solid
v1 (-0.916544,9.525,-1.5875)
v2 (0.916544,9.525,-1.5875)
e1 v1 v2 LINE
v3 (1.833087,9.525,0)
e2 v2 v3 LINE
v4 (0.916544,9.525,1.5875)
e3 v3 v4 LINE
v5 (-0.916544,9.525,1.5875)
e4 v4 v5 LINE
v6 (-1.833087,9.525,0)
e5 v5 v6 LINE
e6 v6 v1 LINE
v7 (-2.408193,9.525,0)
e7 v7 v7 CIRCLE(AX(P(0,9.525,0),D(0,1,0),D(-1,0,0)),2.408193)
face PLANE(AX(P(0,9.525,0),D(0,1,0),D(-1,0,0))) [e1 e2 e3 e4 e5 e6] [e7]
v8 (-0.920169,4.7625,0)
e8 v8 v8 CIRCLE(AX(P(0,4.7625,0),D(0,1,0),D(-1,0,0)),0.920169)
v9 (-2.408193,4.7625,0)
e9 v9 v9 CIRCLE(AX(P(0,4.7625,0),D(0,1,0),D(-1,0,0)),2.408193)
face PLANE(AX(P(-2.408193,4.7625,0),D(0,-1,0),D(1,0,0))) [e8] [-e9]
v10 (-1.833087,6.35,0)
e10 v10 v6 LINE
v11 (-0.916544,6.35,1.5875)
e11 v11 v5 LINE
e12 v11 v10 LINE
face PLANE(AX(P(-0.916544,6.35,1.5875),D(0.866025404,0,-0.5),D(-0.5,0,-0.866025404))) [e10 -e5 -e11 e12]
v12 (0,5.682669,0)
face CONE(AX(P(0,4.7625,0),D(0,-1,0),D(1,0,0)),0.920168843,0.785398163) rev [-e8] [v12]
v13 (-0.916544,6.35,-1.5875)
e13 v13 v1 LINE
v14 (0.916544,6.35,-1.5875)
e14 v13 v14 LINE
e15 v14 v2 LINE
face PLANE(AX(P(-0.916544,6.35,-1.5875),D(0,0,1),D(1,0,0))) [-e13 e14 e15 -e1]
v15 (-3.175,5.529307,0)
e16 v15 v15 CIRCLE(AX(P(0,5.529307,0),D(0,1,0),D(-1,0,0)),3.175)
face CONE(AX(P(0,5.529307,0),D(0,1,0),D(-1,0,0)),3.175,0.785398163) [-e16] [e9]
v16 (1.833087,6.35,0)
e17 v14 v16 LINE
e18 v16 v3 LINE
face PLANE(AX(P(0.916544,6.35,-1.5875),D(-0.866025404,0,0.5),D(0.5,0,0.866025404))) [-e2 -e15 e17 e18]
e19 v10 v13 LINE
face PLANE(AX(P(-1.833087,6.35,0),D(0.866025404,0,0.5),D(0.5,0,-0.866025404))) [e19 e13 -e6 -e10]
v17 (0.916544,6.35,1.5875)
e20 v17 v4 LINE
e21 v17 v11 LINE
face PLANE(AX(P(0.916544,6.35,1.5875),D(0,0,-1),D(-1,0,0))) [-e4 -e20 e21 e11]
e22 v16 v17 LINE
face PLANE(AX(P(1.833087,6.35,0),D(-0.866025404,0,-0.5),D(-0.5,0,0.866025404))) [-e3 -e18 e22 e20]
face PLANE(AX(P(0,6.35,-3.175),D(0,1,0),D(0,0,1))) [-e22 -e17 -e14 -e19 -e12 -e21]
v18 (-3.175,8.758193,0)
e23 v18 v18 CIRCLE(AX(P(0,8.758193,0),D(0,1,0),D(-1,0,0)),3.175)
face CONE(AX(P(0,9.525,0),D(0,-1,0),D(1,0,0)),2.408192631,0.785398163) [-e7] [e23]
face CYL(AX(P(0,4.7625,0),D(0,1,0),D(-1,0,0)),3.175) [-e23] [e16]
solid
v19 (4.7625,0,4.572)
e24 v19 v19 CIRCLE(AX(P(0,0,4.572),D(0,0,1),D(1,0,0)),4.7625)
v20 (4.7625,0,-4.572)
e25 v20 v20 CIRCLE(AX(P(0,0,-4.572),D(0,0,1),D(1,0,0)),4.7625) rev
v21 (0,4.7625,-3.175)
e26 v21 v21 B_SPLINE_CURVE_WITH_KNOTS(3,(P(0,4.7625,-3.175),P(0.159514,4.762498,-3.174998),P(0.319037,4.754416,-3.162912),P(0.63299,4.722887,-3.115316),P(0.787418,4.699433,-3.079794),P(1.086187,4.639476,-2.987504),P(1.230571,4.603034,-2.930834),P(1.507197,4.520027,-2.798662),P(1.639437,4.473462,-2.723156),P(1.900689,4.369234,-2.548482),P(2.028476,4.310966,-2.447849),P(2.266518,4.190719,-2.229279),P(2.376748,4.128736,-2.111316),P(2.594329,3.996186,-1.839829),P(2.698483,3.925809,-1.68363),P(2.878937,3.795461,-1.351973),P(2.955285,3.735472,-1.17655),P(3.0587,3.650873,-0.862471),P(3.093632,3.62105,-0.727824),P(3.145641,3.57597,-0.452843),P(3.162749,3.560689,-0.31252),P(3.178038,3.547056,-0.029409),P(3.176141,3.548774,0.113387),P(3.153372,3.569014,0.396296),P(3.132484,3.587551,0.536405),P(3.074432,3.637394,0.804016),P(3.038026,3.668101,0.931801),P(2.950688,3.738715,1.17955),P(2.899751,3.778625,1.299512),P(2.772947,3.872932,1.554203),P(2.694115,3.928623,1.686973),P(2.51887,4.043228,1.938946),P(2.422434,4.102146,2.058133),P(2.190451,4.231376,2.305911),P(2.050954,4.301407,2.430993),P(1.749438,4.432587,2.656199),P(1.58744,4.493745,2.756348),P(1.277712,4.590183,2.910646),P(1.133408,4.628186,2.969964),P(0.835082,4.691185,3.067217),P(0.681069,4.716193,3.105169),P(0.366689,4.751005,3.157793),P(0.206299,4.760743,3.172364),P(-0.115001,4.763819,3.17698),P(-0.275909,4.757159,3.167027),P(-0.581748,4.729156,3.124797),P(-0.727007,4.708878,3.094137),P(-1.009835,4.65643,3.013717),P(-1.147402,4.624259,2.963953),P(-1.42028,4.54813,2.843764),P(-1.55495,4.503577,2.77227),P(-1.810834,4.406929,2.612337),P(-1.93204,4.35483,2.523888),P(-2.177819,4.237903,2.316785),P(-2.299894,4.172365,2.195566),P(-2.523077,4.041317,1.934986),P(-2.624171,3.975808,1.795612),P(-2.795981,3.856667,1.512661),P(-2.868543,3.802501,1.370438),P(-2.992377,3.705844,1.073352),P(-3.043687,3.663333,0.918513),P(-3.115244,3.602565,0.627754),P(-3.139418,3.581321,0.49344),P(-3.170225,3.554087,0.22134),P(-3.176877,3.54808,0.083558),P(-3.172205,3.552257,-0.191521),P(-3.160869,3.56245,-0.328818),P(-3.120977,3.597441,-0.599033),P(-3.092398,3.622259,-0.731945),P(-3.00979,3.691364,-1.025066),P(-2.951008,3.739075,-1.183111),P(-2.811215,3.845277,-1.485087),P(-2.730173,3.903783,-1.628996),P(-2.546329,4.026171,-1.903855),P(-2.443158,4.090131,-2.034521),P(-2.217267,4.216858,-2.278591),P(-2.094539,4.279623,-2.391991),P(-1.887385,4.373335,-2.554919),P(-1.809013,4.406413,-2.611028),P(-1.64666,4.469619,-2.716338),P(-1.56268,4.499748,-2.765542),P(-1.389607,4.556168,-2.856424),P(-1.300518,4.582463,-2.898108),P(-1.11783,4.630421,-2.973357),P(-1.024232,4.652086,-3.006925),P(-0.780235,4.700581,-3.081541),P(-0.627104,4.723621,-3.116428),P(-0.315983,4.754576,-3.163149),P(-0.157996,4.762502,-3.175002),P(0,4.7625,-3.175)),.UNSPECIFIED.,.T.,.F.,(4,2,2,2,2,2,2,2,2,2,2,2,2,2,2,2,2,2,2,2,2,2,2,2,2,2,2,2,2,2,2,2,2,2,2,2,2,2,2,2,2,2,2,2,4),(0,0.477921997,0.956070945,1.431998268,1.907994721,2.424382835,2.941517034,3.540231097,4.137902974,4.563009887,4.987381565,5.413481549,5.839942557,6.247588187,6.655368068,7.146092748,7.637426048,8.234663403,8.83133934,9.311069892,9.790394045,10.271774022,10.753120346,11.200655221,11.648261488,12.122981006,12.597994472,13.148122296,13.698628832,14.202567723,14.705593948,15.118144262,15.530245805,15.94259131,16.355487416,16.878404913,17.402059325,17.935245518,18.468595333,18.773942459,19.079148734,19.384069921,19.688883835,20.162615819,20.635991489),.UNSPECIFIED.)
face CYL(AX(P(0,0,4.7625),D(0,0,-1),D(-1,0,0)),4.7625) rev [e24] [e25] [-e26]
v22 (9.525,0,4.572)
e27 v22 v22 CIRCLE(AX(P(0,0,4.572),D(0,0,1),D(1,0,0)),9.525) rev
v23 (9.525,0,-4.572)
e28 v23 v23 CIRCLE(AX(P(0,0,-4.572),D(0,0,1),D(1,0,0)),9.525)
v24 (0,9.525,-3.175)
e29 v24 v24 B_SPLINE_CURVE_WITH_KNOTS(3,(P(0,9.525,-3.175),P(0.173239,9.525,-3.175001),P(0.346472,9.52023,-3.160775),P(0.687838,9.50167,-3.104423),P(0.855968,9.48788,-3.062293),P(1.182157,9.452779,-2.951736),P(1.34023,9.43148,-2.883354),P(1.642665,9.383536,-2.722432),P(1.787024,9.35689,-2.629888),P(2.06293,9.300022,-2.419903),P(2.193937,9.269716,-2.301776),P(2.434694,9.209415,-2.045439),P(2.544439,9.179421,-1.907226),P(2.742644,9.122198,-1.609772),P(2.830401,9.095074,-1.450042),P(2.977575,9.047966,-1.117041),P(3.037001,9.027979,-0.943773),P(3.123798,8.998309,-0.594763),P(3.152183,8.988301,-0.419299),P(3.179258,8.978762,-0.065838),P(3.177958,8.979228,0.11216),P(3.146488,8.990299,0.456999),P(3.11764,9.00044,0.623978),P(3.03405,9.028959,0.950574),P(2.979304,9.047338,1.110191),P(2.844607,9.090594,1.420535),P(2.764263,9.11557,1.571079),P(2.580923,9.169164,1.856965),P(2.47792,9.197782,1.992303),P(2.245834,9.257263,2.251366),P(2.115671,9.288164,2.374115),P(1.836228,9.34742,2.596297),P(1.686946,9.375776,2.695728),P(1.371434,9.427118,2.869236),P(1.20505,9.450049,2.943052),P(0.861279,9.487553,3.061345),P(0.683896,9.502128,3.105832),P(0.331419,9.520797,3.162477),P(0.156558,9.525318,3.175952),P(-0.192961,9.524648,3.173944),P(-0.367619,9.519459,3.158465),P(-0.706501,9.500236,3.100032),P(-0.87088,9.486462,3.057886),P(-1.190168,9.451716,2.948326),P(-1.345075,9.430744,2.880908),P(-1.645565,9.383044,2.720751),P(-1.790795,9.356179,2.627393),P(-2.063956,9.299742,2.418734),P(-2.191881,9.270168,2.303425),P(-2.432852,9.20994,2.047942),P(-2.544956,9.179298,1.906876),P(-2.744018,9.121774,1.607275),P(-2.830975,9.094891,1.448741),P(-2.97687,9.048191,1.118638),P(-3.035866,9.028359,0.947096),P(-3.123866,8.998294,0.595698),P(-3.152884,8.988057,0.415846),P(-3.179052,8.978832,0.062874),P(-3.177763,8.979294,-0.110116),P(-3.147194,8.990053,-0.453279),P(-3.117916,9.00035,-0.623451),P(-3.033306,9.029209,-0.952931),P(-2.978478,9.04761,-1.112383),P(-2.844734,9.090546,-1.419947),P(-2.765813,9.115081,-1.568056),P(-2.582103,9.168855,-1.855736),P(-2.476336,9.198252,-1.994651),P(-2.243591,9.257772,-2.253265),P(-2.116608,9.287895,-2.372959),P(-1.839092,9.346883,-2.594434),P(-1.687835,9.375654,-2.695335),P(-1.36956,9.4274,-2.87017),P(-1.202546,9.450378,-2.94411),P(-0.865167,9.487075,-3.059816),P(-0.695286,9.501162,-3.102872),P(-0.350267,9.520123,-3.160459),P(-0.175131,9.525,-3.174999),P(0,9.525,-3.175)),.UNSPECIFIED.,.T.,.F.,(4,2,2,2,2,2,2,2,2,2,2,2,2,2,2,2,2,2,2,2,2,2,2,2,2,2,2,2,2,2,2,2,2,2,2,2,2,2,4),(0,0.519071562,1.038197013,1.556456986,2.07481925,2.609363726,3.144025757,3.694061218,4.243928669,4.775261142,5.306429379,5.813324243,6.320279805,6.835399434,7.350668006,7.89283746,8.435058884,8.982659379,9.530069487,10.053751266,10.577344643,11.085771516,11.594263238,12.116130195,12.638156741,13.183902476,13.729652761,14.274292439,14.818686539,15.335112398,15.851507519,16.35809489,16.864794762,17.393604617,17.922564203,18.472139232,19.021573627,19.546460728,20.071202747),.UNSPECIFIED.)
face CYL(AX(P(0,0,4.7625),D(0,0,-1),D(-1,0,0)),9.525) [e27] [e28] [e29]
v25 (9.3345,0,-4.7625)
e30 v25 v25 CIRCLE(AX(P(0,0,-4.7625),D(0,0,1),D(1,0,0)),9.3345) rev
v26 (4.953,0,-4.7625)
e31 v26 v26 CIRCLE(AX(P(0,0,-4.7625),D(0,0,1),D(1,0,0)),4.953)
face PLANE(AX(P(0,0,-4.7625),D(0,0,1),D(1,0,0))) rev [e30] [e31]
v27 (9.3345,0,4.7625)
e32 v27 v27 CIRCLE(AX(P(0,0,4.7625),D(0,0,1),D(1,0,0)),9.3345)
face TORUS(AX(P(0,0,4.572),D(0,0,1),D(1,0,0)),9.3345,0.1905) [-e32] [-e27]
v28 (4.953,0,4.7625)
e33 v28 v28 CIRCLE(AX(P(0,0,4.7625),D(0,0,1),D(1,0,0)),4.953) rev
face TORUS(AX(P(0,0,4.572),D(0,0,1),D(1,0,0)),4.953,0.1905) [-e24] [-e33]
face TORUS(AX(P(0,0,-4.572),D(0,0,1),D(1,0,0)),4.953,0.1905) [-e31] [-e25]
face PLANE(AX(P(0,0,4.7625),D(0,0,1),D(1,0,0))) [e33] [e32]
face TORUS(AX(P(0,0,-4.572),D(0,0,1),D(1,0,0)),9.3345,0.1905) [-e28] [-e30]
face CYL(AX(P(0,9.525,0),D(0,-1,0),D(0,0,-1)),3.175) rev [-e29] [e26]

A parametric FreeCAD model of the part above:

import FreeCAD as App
import Part
import Sketcher
Q = App.Units.Quantity


def edges_at(feature, points):
    """Names of the edges that pass closest to the given points."""
    edges = feature.Shape.Edges
    near = lambda p: min(range(len(edges)), key=lambda i: edges[i].distToShape(Part.Vertex(*p))[0])
    return sorted({f"Edge{near(p) + 1}" for p in points})

doc = App.newDocument("Part")
body = doc.addObject("PartDesign::Body", "Body")

# Sketch on XY plane
sketch1 = doc.addObject("Sketcher::SketchObject", "Sketch")
body.addObject(sketch1)
sketch1.AttachmentSupport = (doc.XY_Plane, [""])
sketch1.MapMode = "FlatFace"
sketch1.addGeometry([
    Part.Circle(App.Vector(0, 0, 0), App.Vector(0, 0, 1), 9.5),
    Part.Circle(App.Vector(0, 0, 0), App.Vector(0, 0, 1), 4.8),
], False)
sketch1.addConstraint([
    Sketcher.Constraint("Coincident", 0, 3, -1, 1),
    Sketcher.Constraint("Coincident", 1, 3, -1, 1),
    Sketcher.Constraint("Diameter", 0, Q("0.75 in")),
    Sketcher.Constraint("Diameter", 1, Q("0.375 in")),
])
pad1 = doc.addObject("PartDesign::Pad", "Pad")
body.addObject(pad1)
pad1.Profile = sketch1
pad1.Length = Q("0.375 in")
pad1.Midplane = True

# Sketch on XZ plane
sketch2 = doc.addObject("Sketcher::SketchObject", "Sketch001")
body.addObject(sketch2)
sketch2.AttachmentSupport = (doc.XZ_Plane, [""])
sketch2.MapMode = "FlatFace"
sketch2.addGeometry(Part.Circle(App.Vector(0, 0, 0), App.Vector(0, 0, 1), 3.2), False)
sketch2.addConstraint([
    Sketcher.Constraint("Coincident", 0, 3, -1, 1),
    Sketcher.Constraint("Diameter", 0, Q("0.25 in")),
])
pocket1 = doc.addObject("PartDesign::Pocket", "Pocket")
body.addObject(pocket1)
pocket1.Profile = sketch2
pocket1.Type = "ThroughAll"
doc.recompute()

fillet = doc.addObject("PartDesign::Fillet", "Fillet")
body.addObject(fillet)
fillet.Base = (pocket1, edges_at(pocket1, [
    (-9.525, 0, -4.763),
    (-9.525, 0, 4.763),
    (-4.763, 0, -4.763),
    (-4.763, 0, 4.763),
]))
fillet.Radius = Q("0.0075 in")
body2 = doc.addObject("PartDesign::Body", "Body001")

# Sketch on XY plane
sketch3 = doc.addObject("Sketcher::SketchObject", "Sketch002")
body2.addObject(sketch3)
sketch3.AttachmentSupport = (doc.getObject("XY_Plane001"), [""])
sketch3.MapMode = "FlatFace"
sketch3.addGeometry([
    Part.LineSegment(App.Vector(-2.4, 4.8, 0), App.Vector(-0.9, 4.8, 0)),  # 0
    Part.LineSegment(App.Vector(-0.9, 4.8, 0), App.Vector(0, 5.7, 0)),  # 1
    Part.LineSegment(App.Vector(0, 5.7, 0), App.Vector(0, 9.5, 0)),  # 2
    Part.LineSegment(App.Vector(0, 9.5, 0), App.Vector(-2.4, 9.5, 0)),  # 3
    Part.LineSegment(App.Vector(-2.4, 9.5, 0), App.Vector(-3.2, 8.8, 0)),  # 4
    Part.LineSegment(App.Vector(-3.2, 8.8, 0), App.Vector(-3.2, 5.5, 0)),  # 5
    Part.LineSegment(App.Vector(-3.2, 5.5, 0), App.Vector(-2.4, 4.8, 0)),  # 6
], False)
sketch3.addConstraint([
    Sketcher.Constraint("Coincident", 0, 2, 1, 1),
    Sketcher.Constraint("Coincident", 1, 2, 2, 1),
    Sketcher.Constraint("Coincident", 2, 2, 3, 1),
    Sketcher.Constraint("Coincident", 3, 2, 4, 1),
    Sketcher.Constraint("Coincident", 4, 2, 5, 1),
    Sketcher.Constraint("Coincident", 5, 2, 6, 1),
    Sketcher.Constraint("Coincident", 6, 2, 0, 1),
    Sketcher.Constraint("Horizontal", 0),
    Sketcher.Constraint("Vertical", 2),
    Sketcher.Constraint("Horizontal", 3),
    Sketcher.Constraint("Vertical", 5),
    Sketcher.Constraint("PointOnObject", 1, 2, -2),
    Sketcher.Constraint("Parallel", 1, 4),
    Sketcher.Constraint("Perpendicular", 4, 6),
    Sketcher.Constraint("Vertical", 3, 2, 6, 2),
    Sketcher.Constraint("Equal", 4, 6),
    Sketcher.Constraint("DistanceY", -1, 1, 0, 2, Q("0.1875 in")),
    Sketcher.Constraint("DistanceY", -1, 1, 2, 2, Q("0.375 in")),
    Sketcher.Constraint("DistanceX", 4, 2, -1, 1, Q("0.125 in")),
    Sketcher.Constraint("DistanceY", 2, 1, 2, 2, 3.842331),
    Sketcher.Constraint("Distance", 4, 1.084429),
])
revolution = doc.addObject("PartDesign::Revolution", "Revolution")
body2.addObject(revolution)
revolution.Profile = sketch3
revolution.ReferenceAxis = (sketch3, ["V_Axis"])
revolution.Angle = 360

# Sketch on XZ plane
sketch4 = doc.addObject("Sketcher::SketchObject", "Sketch003")
body2.addObject(sketch4)
sketch4.AttachmentSupport = (doc.getObject("XZ_Plane001"), [""])
sketch4.MapMode = "FlatFace"
sketch4.AttachmentOffset = App.Placement(App.Vector(0, 0, -0.375 * 25.4), App.Rotation())
sketch4.addGeometry([
    Part.LineSegment(App.Vector(1.8, 0, 0), App.Vector(0.9, 1.6, 0)),  # 0
    Part.LineSegment(App.Vector(0.9, 1.6, 0), App.Vector(-0.9, 1.6, 0)),  # 1
    Part.LineSegment(App.Vector(-0.9, 1.6, 0), App.Vector(-1.8, 0, 0)),  # 2
    Part.LineSegment(App.Vector(-1.8, 0, 0), App.Vector(-0.9, -1.6, 0)),  # 3
    Part.LineSegment(App.Vector(-0.9, -1.6, 0), App.Vector(0.9, -1.6, 0)),  # 4
    Part.LineSegment(App.Vector(0.9, -1.6, 0), App.Vector(1.8, 0, 0)),  # 5
], False)
sketch4.addConstraint([
    Sketcher.Constraint("Coincident", 0, 2, 1, 1),
    Sketcher.Constraint("Coincident", 1, 2, 2, 1),
    Sketcher.Constraint("Coincident", 2, 2, 3, 1),
    Sketcher.Constraint("Coincident", 3, 2, 4, 1),
    Sketcher.Constraint("Coincident", 4, 2, 5, 1),
    Sketcher.Constraint("Coincident", 5, 2, 0, 1),
    Sketcher.Constraint("Horizontal", 1),
    Sketcher.Constraint("Horizontal", 4),
    Sketcher.Constraint("Symmetric", 0, 2, 3, 2, -1, 1),
    Sketcher.Constraint("Symmetric", 2, 2, 5, 2, -1, 1),
    Sketcher.Constraint("PointOnObject", 2, 2, -1),
    Sketcher.Constraint("Parallel", 2, 5),
    Sketcher.Constraint("Vertical", 1, 2, 3, 2),
    Sketcher.Constraint("Angle", 0, Q("120 deg")),
    Sketcher.Constraint("DistanceY", -1, 1, 0, 2, Q("0.0625 in")),
    Sketcher.Constraint("DistanceX", 1, 2, 1, 1, 1.833087),
])
pocket2 = doc.addObject("PartDesign::Pocket", "Pocket001")
body2.addObject(pocket2)
pocket2.Profile = sketch4
pocket2.Length = Q("0.125 in")
pocket2.Reversed = True

doc.recompute()
